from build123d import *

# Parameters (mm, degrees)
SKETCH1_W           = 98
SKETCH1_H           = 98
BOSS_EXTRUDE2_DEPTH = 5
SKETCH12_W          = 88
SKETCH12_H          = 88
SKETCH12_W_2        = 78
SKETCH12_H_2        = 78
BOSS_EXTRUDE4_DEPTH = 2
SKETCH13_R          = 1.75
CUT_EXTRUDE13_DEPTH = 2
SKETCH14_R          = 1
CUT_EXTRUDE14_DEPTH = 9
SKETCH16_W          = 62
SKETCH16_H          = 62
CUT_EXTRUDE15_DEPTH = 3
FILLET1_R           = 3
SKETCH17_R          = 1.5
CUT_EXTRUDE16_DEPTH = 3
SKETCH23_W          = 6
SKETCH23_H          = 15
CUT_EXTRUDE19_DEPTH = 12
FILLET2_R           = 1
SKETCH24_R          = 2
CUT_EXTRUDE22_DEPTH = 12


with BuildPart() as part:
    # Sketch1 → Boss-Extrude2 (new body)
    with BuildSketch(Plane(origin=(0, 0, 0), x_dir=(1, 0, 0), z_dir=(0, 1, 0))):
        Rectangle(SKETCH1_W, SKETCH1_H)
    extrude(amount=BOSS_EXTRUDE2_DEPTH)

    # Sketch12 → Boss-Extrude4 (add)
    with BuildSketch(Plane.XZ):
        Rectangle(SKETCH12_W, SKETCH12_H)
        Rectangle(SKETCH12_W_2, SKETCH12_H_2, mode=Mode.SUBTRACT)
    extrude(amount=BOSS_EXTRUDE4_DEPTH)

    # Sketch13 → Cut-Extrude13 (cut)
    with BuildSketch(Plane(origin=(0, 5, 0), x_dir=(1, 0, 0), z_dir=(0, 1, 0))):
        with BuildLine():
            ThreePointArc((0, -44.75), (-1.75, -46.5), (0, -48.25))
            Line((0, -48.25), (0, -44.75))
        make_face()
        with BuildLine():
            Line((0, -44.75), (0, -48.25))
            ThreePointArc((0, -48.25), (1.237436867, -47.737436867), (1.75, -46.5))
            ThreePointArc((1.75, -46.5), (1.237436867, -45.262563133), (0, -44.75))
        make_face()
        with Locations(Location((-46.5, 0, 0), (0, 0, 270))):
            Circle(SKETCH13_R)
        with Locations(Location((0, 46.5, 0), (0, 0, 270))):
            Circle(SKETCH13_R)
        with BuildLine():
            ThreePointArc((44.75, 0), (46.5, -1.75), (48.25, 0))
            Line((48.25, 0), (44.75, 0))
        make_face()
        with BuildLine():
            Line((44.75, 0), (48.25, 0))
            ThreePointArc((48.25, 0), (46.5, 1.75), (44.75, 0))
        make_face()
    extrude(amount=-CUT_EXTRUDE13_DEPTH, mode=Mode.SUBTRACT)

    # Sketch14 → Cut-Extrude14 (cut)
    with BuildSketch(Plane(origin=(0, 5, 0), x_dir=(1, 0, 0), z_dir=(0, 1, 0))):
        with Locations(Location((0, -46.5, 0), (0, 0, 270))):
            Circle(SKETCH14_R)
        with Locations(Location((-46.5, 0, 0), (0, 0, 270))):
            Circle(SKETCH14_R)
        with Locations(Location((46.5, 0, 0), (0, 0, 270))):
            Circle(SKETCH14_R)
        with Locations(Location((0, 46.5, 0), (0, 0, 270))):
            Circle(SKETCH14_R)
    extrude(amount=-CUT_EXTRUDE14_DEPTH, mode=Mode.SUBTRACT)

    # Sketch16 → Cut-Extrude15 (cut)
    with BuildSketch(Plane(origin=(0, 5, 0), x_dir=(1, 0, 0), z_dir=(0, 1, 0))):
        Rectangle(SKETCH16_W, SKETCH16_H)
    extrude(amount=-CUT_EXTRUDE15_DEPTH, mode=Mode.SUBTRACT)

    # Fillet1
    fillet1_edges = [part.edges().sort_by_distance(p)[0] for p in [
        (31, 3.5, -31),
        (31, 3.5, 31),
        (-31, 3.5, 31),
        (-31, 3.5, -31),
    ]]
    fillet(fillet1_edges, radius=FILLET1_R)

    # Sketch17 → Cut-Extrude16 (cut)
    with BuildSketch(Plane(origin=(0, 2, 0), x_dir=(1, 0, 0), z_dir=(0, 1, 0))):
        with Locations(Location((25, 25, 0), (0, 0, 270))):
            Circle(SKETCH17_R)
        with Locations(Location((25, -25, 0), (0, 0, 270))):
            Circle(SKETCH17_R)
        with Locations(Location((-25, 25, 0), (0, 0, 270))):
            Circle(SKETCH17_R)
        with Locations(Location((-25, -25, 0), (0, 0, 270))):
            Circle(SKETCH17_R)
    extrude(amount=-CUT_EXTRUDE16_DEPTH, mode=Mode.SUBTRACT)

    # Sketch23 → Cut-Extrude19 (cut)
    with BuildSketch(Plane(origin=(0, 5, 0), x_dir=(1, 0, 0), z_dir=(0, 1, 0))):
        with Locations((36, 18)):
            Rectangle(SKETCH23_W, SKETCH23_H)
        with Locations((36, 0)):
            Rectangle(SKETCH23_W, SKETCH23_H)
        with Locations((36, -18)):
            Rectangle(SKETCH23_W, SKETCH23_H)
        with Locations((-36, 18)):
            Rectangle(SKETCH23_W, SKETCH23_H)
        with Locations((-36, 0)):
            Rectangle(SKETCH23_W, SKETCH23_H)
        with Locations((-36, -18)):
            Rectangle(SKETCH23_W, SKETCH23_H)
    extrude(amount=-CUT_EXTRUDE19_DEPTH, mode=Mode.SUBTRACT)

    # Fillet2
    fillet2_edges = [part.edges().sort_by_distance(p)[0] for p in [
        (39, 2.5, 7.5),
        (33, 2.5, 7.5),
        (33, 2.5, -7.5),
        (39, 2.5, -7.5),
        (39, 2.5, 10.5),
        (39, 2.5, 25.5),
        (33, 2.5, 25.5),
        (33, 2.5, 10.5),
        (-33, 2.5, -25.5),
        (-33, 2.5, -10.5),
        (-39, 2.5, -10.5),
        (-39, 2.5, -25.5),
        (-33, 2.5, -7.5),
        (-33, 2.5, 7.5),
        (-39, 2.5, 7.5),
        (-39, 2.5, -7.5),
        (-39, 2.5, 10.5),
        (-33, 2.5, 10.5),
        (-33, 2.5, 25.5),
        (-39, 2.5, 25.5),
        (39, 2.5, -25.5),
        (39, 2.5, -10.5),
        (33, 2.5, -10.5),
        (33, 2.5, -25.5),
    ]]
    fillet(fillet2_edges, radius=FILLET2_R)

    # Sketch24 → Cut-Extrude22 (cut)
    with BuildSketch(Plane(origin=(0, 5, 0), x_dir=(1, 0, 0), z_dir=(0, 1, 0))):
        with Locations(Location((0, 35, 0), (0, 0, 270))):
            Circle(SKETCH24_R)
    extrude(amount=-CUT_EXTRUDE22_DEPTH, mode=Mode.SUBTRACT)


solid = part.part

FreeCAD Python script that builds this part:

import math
import FreeCAD as App
import Part
import Sketcher


def edges_at(feature, points):
    """Names of the edges that pass closest to the given points."""
    edges = feature.Shape.Edges
    near = lambda p: min(range(len(edges)), key=lambda i: edges[i].distToShape(Part.Vertex(*p))[0])
    return sorted({f"Edge{near(p) + 1}" for p in points})

doc = App.newDocument("Part")
params = doc.addObject("Spreadsheet::Sheet", "Params")
for row, (alias, value) in enumerate([
    ("sketch1_width", "98 mm"),
    ("pad1_length", "5 mm"),
    ("sketch2_width", "88 mm"),
    ("sketch2_width2", "78 mm"),
    ("pad2_length", "2 mm"),
    ("sketch3_diameter", "3.5 mm"),
    ("pocket1_length", "2 mm"),
    ("sketch4_diameter", "2 mm"),
    ("pocket2_length", "9 mm"),
    ("sketch5_width", "62 mm"),
    ("pocket3_length", "3 mm"),
    ("fillet_radius", "3 mm"),
    ("sketch6_diameter", "3 mm"),
    ("pocket4_length", "3 mm"),
    ("sketch7_width", "6 mm"),
    ("sketch7_height", "15 mm"),
    ("pocket5_length", "12 mm"),
    ("fillet2_radius", "1 mm"),
    ("sketch8_diameter", "4 mm"),
    ("pocket6_length", "12 mm"),
], start=1):
    params.set(f"A{row}", alias)
    params.set(f"B{row}", "=" + value)
    params.setAlias(f"B{row}", alias)

body = doc.addObject("PartDesign::Body", "Body")

# Sketch on XZ plane
sketch1 = body.newObject("Sketcher::SketchObject", "Sketch")
sketch1.AttachmentSupport = (doc.getObject("XZ_Plane"), [""])
sketch1.MapMode = "FlatFace"
sketch1.addGeometry(Part.LineSegment(App.Vector(-49, -49, 0), App.Vector(-49, 49, 0)), False)
sketch1.addGeometry(Part.LineSegment(App.Vector(-49, 49, 0), App.Vector(49, 49, 0)), False)
sketch1.addGeometry(Part.LineSegment(App.Vector(49, 49, 0), App.Vector(49, -49, 0)), False)
sketch1.addGeometry(Part.LineSegment(App.Vector(49, -49, 0), App.Vector(-49, -49, 0)), False)
sketch1.addConstraint(Sketcher.Constraint("Coincident", 0, 2, 1, 1))
sketch1.addConstraint(Sketcher.Constraint("Coincident", 1, 2, 2, 1))
sketch1.addConstraint(Sketcher.Constraint("Coincident", 2, 2, 3, 1))
sketch1.addConstraint(Sketcher.Constraint("Coincident", 3, 2, 0, 1))
sketch1.addConstraint(Sketcher.Constraint("Vertical", 0))
sketch1.addConstraint(Sketcher.Constraint("Horizontal", 1))
sketch1.addConstraint(Sketcher.Constraint("Vertical", 2))
sketch1.addConstraint(Sketcher.Constraint("Horizontal", 3))
sketch1.addConstraint(Sketcher.Constraint("Symmetric", 0, 2, 2, 2, -1, 1))
sketch1.addConstraint(Sketcher.Constraint("Equal", 3, 0))
sketch1.addConstraint(Sketcher.Constraint("DistanceX", 1, 1, 1, 2, 98.0))
sketch1.setExpression("Constraints[10]", "Params.sketch1_width")
pad1 = body.newObject("PartDesign::Pad", "Pad")
pad1.Profile = sketch1
pad1.setExpression("Length", "Params.pad1_length")
pad1.Reversed = True

# Sketch on XZ plane
sketch2 = body.newObject("Sketcher::SketchObject", "Sketch001")
sketch2.AttachmentSupport = (doc.getObject("XZ_Plane"), [""])
sketch2.MapMode = "FlatFace"
sketch2.addGeometry(Part.LineSegment(App.Vector(-44, 44, 0), App.Vector(-44, -44, 0)), False)
sketch2.addGeometry(Part.LineSegment(App.Vector(-44, -44, 0), App.Vector(44, -44, 0)), False)
sketch2.addGeometry(Part.LineSegment(App.Vector(44, -44, 0), App.Vector(44, 44, 0)), False)
sketch2.addGeometry(Part.LineSegment(App.Vector(44, 44, 0), App.Vector(-44, 44, 0)), False)
sketch2.addGeometry(Part.LineSegment(App.Vector(39, -39, 0), App.Vector(-39, -39, 0)), False)
sketch2.addGeometry(Part.LineSegment(App.Vector(-39, -39, 0), App.Vector(-39, 39, 0)), False)
sketch2.addGeometry(Part.LineSegment(App.Vector(-39, 39, 0), App.Vector(39, 39, 0)), False)
sketch2.addGeometry(Part.LineSegment(App.Vector(39, 39, 0), App.Vector(39, -39, 0)), False)
sketch2.addConstraint(Sketcher.Constraint("Coincident", 0, 2, 1, 1))
sketch2.addConstraint(Sketcher.Constraint("Coincident", 1, 2, 2, 1))
sketch2.addConstraint(Sketcher.Constraint("Coincident", 2, 2, 3, 1))
sketch2.addConstraint(Sketcher.Constraint("Coincident", 3, 2, 0, 1))
sketch2.addConstraint(Sketcher.Constraint("Coincident", 4, 2, 5, 1))
sketch2.addConstraint(Sketcher.Constraint("Coincident", 5, 2, 6, 1))
sketch2.addConstraint(Sketcher.Constraint("Coincident", 6, 2, 7, 1))
sketch2.addConstraint(Sketcher.Constraint("Coincident", 7, 2, 4, 1))
sketch2.addConstraint(Sketcher.Constraint("Vertical", 0))
sketch2.addConstraint(Sketcher.Constraint("Horizontal", 1))
sketch2.addConstraint(Sketcher.Constraint("Vertical", 2))
sketch2.addConstraint(Sketcher.Constraint("Horizontal", 3))
sketch2.addConstraint(Sketcher.Constraint("Horizontal", 4))
sketch2.addConstraint(Sketcher.Constraint("Vertical", 5))
sketch2.addConstraint(Sketcher.Constraint("Horizontal", 6))
sketch2.addConstraint(Sketcher.Constraint("Vertical", 7))
sketch2.addConstraint(Sketcher.Constraint("Symmetric", 0, 2, 2, 2, -1, 1))
sketch2.addConstraint(Sketcher.Constraint("Symmetric", 4, 2, 6, 2, -1, 1))
sketch2.addConstraint(Sketcher.Constraint("Equal", 3, 0))
sketch2.addConstraint(Sketcher.Constraint("Equal", 6, 5))
sketch2.addConstraint(Sketcher.Constraint("DistanceX", 1, 1, 1, 2, 88.0))
sketch2.addConstraint(Sketcher.Constraint("DistanceX", 4, 2, 4, 1, 78.0))
sketch2.setExpression("Constraints[20]", "Params.sketch2_width")
sketch2.setExpression("Constraints[21]", "Params.sketch2_width2")
pad2 = body.newObject("PartDesign::Pad", "Pad001")
pad2.Profile = sketch2
pad2.setExpression("Length", "Params.pad2_length")

# Sketch on XZ plane
sketch3 = body.newObject("Sketcher::SketchObject", "Sketch002")
sketch3.AttachmentSupport = (doc.getObject("XZ_Plane"), [""])
sketch3.MapMode = "FlatFace"
sketch3.AttachmentOffset = App.Placement(App.Vector(0, 0, -5), App.Rotation())
sketch3.addGeometry(Part.ArcOfCircle(Part.Circle(App.Vector(0, 46.5, 0), App.Vector(0, 0, 1), 1.8), math.radians(90), math.radians(270)), False)
sketch3.addGeometry(Part.ArcOfCircle(Part.Circle(App.Vector(0, 46.5, 0), App.Vector(0, 0, 1), 1.8), math.radians(0), math.radians(90)), False)
sketch3.addGeometry(Part.ArcOfCircle(Part.Circle(App.Vector(0, 46.5, 0), App.Vector(0, 0, 1), 1.8), math.radians(-90), math.radians(0)), False)
sketch3.addGeometry(Part.Circle(App.Vector(-46.5, 0, 0), App.Vector(0, 0, 1), 1.8), False)
sketch3.addGeometry(Part.Circle(App.Vector(0, -46.5, 0), App.Vector(0, 0, 1), 1.8), False)
sketch3.addGeometry(Part.Circle(App.Vector(46.5, 0, 0), App.Vector(0, 0, 1), 1.8), False)
sketch3.addConstraint(Sketcher.Constraint("Tangent", 0, 1, 1, 2))
sketch3.addConstraint(Sketcher.Constraint("Tangent", 1, 1, 2, 2))
sketch3.addConstraint(Sketcher.Constraint("Tangent", 2, 1, 0, 2))
sketch3.addConstraint(Sketcher.Constraint("Equal", 2, 3))
sketch3.addConstraint(Sketcher.Constraint("Equal", 3, 4))
sketch3.addConstraint(Sketcher.Constraint("Equal", 4, 5))
sketch3.addConstraint(Sketcher.Constraint("Symmetric", 0, 3, 4, 3, -1, 1))
sketch3.addConstraint(Sketcher.Constraint("Symmetric", 3, 3, 5, 3, -1, 1))
sketch3.addConstraint(Sketcher.Constraint("PointOnObject", 0, 3, -2))
sketch3.addConstraint(Sketcher.Constraint("PointOnObject", 3, 3, -1))
sketch3.addConstraint(Sketcher.Constraint("PointOnObject", 0, 1, -2))
sketch3.addConstraint(Sketcher.Constraint("PointOnObject", 2, 1, -2))
sketch3.addConstraint(Sketcher.Constraint("Horizontal", 2, 3, 1, 1))
sketch3.addConstraint(Sketcher.Constraint("Diameter", 3, 3.5))
sketch3.addConstraint(Sketcher.Constraint("DistanceY", 4, 3, 0, 3, 93.0))
sketch3.addConstraint(Sketcher.Constraint("DistanceX", 3, 3, 5, 3, 93.0))
sketch3.setExpression("Constraints[13]", "Params.sketch3_diameter")
pocket1 = body.newObject("PartDesign::Pocket", "Pocket")
pocket1.Profile = sketch3
pocket1.setExpression("Length", "Params.pocket1_length")
pocket1.Reversed = True

# Sketch on XZ plane
sketch4 = body.newObject("Sketcher::SketchObject", "Sketch003")
sketch4.AttachmentSupport = (doc.getObject("XZ_Plane"), [""])
sketch4.MapMode = "FlatFace"
sketch4.AttachmentOffset = App.Placement(App.Vector(0, 0, -5), App.Rotation())
sketch4.addGeometry(Part.Circle(App.Vector(0, 46.5, 0), App.Vector(0, 0, 1), 1), False)
sketch4.addGeometry(Part.Circle(App.Vector(-46.5, 0, 0), App.Vector(0, 0, 1), 1), False)
sketch4.addGeometry(Part.Circle(App.Vector(46.5, 0, 0), App.Vector(0, 0, 1), 1), False)
sketch4.addGeometry(Part.Circle(App.Vector(0, -46.5, 0), App.Vector(0, 0, 1), 1), False)
sketch4.addConstraint(Sketcher.Constraint("Equal", 0, 1))
sketch4.addConstraint(Sketcher.Constraint("Equal", 1, 2))
sketch4.addConstraint(Sketcher.Constraint("Equal", 2, 3))
sketch4.addConstraint(Sketcher.Constraint("Symmetric", 1, 3, 2, 3, -1, 1))
sketch4.addConstraint(Sketcher.Constraint("Symmetric", 0, 3, 3, 3, -1, 1))
sketch4.addConstraint(Sketcher.Constraint("PointOnObject", 0, 3, -2))
sketch4.addConstraint(Sketcher.Constraint("PointOnObject", 1, 3, -1))
sketch4.addConstraint(Sketcher.Constraint("Diameter", 0, 2.0))
sketch4.addConstraint(Sketcher.Constraint("DistanceX", 1, 3, 2, 3, 93.0))
sketch4.addConstraint(Sketcher.Constraint("DistanceY", 3, 3, 0, 3, 93.0))
sketch4.setExpression("Constraints[7]", "Params.sketch4_diameter")
pocket2 = body.newObject("PartDesign::Pocket", "Pocket001")
pocket2.Profile = sketch4
pocket2.setExpression("Length", "Params.pocket2_length")
pocket2.Reversed = True

# Sketch on XZ plane
sketch5 = body.newObject("Sketcher::SketchObject", "Sketch004")
sketch5.AttachmentSupport = (doc.getObject("XZ_Plane"), [""])
sketch5.MapMode = "FlatFace"
sketch5.AttachmentOffset = App.Placement(App.Vector(0, 0, -5), App.Rotation())
sketch5.addGeometry(Part.LineSegment(App.Vector(-31, -31, 0), App.Vector(-31, 31, 0)), False)
sketch5.addGeometry(Part.LineSegment(App.Vector(-31, 31, 0), App.Vector(31, 31, 0)), False)
sketch5.addGeometry(Part.LineSegment(App.Vector(31, 31, 0), App.Vector(31, -31, 0)), False)
sketch5.addGeometry(Part.LineSegment(App.Vector(31, -31, 0), App.Vector(-31, -31, 0)), False)
sketch5.addConstraint(Sketcher.Constraint("Coincident", 0, 2, 1, 1))
sketch5.addConstraint(Sketcher.Constraint("Coincident", 1, 2, 2, 1))
sketch5.addConstraint(Sketcher.Constraint("Coincident", 2, 2, 3, 1))
sketch5.addConstraint(Sketcher.Constraint("Coincident", 3, 2, 0, 1))
sketch5.addConstraint(Sketcher.Constraint("Vertical", 0))
sketch5.addConstraint(Sketcher.Constraint("Horizontal", 1))
sketch5.addConstraint(Sketcher.Constraint("Vertical", 2))
sketch5.addConstraint(Sketcher.Constraint("Horizontal", 3))
sketch5.addConstraint(Sketcher.Constraint("Symmetric", 0, 2, 2, 2, -1, 1))
sketch5.addConstraint(Sketcher.Constraint("Equal", 3, 0))
sketch5.addConstraint(Sketcher.Constraint("DistanceX", 1, 1, 1, 2, 62.0))
sketch5.setExpression("Constraints[10]", "Params.sketch5_width")
pocket3 = body.newObject("PartDesign::Pocket", "Pocket002")
pocket3.Profile = sketch5
pocket3.setExpression("Length", "Params.pocket3_length")
pocket3.Reversed = True
doc.recompute()

fillet = body.newObject("PartDesign::Fillet", "Fillet")
fillet.Base = (pocket3, edges_at(pocket3, [
    (31, 3.5, -31),
    (31, 3.5, 31),
    (-31, 3.5, 31),
    (-31, 3.5, -31),
]))
fillet.setExpression("Radius", "Params.fillet_radius")

# Sketch on XZ plane
sketch6 = body.newObject("Sketcher::SketchObject", "Sketch005")
sketch6.AttachmentSupport = (doc.getObject("XZ_Plane"), [""])
sketch6.MapMode = "FlatFace"
sketch6.AttachmentOffset = App.Placement(App.Vector(0, 0, -2), App.Rotation())
sketch6.addGeometry(Part.Circle(App.Vector(25, -25, 0), App.Vector(0, 0, 1), 1.5), False)
sketch6.addGeometry(Part.Circle(App.Vector(25, 25, 0), App.Vector(0, 0, 1), 1.5), False)
sketch6.addGeometry(Part.Circle(App.Vector(-25, -25, 0), App.Vector(0, 0, 1), 1.5), False)
sketch6.addGeometry(Part.Circle(App.Vector(-25, 25, 0), App.Vector(0, 0, 1), 1.5), False)
sketch6.addConstraint(Sketcher.Constraint("Equal", 0, 1))
sketch6.addConstraint(Sketcher.Constraint("Equal", 1, 2))
sketch6.addConstraint(Sketcher.Constraint("Equal", 2, 3))
sketch6.addConstraint(Sketcher.Constraint("Symmetric", 1, 3, 2, 3, -1, 1))
sketch6.addConstraint(Sketcher.Constraint("Symmetric", 0, 3, 3, 3, -1, 1))
sketch6.addConstraint(Sketcher.Constraint("Symmetric", 0, 3, 2, 3, -2))
sketch6.addConstraint(Sketcher.Constraint("Diameter", 0, 3.0))
sketch6.addConstraint(Sketcher.Constraint("DistanceX", -1, 1, 0, 3, 25.0))
sketch6.addConstraint(Sketcher.Constraint("DistanceY", 0, 3, -1, 1, 25.0))
sketch6.setExpression("Constraints[6]", "Params.sketch6_diameter")
pocket4 = body.newObject("PartDesign::Pocket", "Pocket003")
pocket4.Profile = sketch6
pocket4.setExpression("Length", "Params.pocket4_length")
pocket4.Reversed = True

# Sketch on XZ plane
sketch7 = body.newObject("Sketcher::SketchObject", "Sketch006")
sketch7.AttachmentSupport = (doc.getObject("XZ_Plane"), [""])
sketch7.MapMode = "FlatFace"
sketch7.AttachmentOffset = App.Placement(App.Vector(0, 0, -5), App.Rotation())
sketch7.addGeometry(Part.LineSegment(App.Vector(33, -26, 0), App.Vector(33, -10, 0)), False)
sketch7.addGeometry(Part.LineSegment(App.Vector(33, -10, 0), App.Vector(39, -10, 0)), False)
sketch7.addGeometry(Part.LineSegment(App.Vector(39, -10, 0), App.Vector(39, -26, 0)), False)
sketch7.addGeometry(Part.LineSegment(App.Vector(39, -26, 0), App.Vector(33, -26, 0)), False)
sketch7.addGeometry(Part.LineSegment(App.Vector(33, -8, 0), App.Vector(33, 8, 0)), False)
sketch7.addGeometry(Part.LineSegment(App.Vector(33, 8, 0), App.Vector(39, 8, 0)), False)
sketch7.addGeometry(Part.LineSegment(App.Vector(39, 8, 0), App.Vector(39, -8, 0)), False)
sketch7.addGeometry(Part.LineSegment(App.Vector(39, -8, 0), App.Vector(33, -8, 0)), False)
sketch7.addGeometry(Part.LineSegment(App.Vector(33, 10, 0), App.Vector(33, 26, 0)), False)
sketch7.addGeometry(Part.LineSegment(App.Vector(33, 26, 0), App.Vector(39, 26, 0)), False)
sketch7.addGeometry(Part.LineSegment(App.Vector(39, 26, 0), App.Vector(39, 10, 0)), False)
sketch7.addGeometry(Part.LineSegment(App.Vector(39, 10, 0), App.Vector(33, 10, 0)), False)
sketch7.addGeometry(Part.LineSegment(App.Vector(-39, -26, 0), App.Vector(-39, -10, 0)), False)
sketch7.addGeometry(Part.LineSegment(App.Vector(-39, -10, 0), App.Vector(-33, -10, 0)), False)
sketch7.addGeometry(Part.LineSegment(App.Vector(-33, -10, 0), App.Vector(-33, -26, 0)), False)
sketch7.addGeometry(Part.LineSegment(App.Vector(-33, -26, 0), App.Vector(-39, -26, 0)), False)
sketch7.addGeometry(Part.LineSegment(App.Vector(-39, -8, 0), App.Vector(-39, 8, 0)), False)
sketch7.addGeometry(Part.LineSegment(App.Vector(-39, 8, 0), App.Vector(-33, 8, 0)), False)
sketch7.addGeometry(Part.LineSegment(App.Vector(-33, 8, 0), App.Vector(-33, -8, 0)), False)
sketch7.addGeometry(Part.LineSegment(App.Vector(-33, -8, 0), App.Vector(-39, -8, 0)), False)
sketch7.addGeometry(Part.LineSegment(App.Vector(-39, 10, 0), App.Vector(-39, 26, 0)), False)
sketch7.addGeometry(Part.LineSegment(App.Vector(-39, 26, 0), App.Vector(-33, 26, 0)), False)
sketch7.addGeometry(Part.LineSegment(App.Vector(-33, 26, 0), App.Vector(-33, 10, 0)), False)
sketch7.addGeometry(Part.LineSegment(App.Vector(-33, 10, 0), App.Vector(-39, 10, 0)), False)
sketch7.addConstraint(Sketcher.Constraint("Coincident", 0, 2, 1, 1))
sketch7.addConstraint(Sketcher.Constraint("Coincident", 1, 2, 2, 1))
sketch7.addConstraint(Sketcher.Constraint("Coincident", 2, 2, 3, 1))
sketch7.addConstraint(Sketcher.Constraint("Coincident", 3, 2, 0, 1))
sketch7.addConstraint(Sketcher.Constraint("Coincident", 4, 2, 5, 1))
sketch7.addConstraint(Sketcher.Constraint("Coincident", 5, 2, 6, 1))
sketch7.addConstraint(Sketcher.Constraint("Coincident", 6, 2, 7, 1))
sketch7.addConstraint(Sketcher.Constraint("Coincident", 7, 2, 4, 1))
sketch7.addConstraint(Sketcher.Constraint("Coincident", 8, 2, 9, 1))
sketch7.addConstraint(Sketcher.Constraint("Coincident", 9, 2, 10, 1))
sketch7.addConstraint(Sketcher.Constraint("Coincident", 10, 2, 11, 1))
sketch7.addConstraint(Sketcher.Constraint("Coincident", 11, 2, 8, 1))
sketch7.addConstraint(Sketcher.Constraint("Coincident", 12, 2, 13, 1))
sketch7.addConstraint(Sketcher.Constraint("Coincident", 13, 2, 14, 1))
sketch7.addConstraint(Sketcher.Constraint("Coincident", 14, 2, 15, 1))
sketch7.addConstraint(Sketcher.Constraint("Coincident", 15, 2, 12, 1))
sketch7.addConstraint(Sketcher.Constraint("Coincident", 16, 2, 17, 1))
sketch7.addConstraint(Sketcher.Constraint("Coincident", 17, 2, 18, 1))
sketch7.addConstraint(Sketcher.Constraint("Coincident", 18, 2, 19, 1))
sketch7.addConstraint(Sketcher.Constraint("Coincident", 19, 2, 16, 1))
sketch7.addConstraint(Sketcher.Constraint("Coincident", 20, 2, 21, 1))
sketch7.addConstraint(Sketcher.Constraint("Coincident", 21, 2, 22, 1))
sketch7.addConstraint(Sketcher.Constraint("Coincident", 22, 2, 23, 1))
sketch7.addConstraint(Sketcher.Constraint("Coincident", 23, 2, 20, 1))
sketch7.addConstraint(Sketcher.Constraint("Vertical", 0))
sketch7.addConstraint(Sketcher.Constraint("Horizontal", 1))
sketch7.addConstraint(Sketcher.Constraint("Vertical", 2))
sketch7.addConstraint(Sketcher.Constraint("Horizontal", 3))
sketch7.addConstraint(Sketcher.Constraint("Vertical", 4))
sketch7.addConstraint(Sketcher.Constraint("Horizontal", 5))
sketch7.addConstraint(Sketcher.Constraint("Vertical", 6))
sketch7.addConstraint(Sketcher.Constraint("Horizontal", 7))
sketch7.addConstraint(Sketcher.Constraint("Vertical", 8))
sketch7.addConstraint(Sketcher.Constraint("Horizontal", 9))
sketch7.addConstraint(Sketcher.Constraint("Vertical", 10))
sketch7.addConstraint(Sketcher.Constraint("Horizontal", 11))
sketch7.addConstraint(Sketcher.Constraint("Vertical", 12))
sketch7.addConstraint(Sketcher.Constraint("Horizontal", 13))
sketch7.addConstraint(Sketcher.Constraint("Vertical", 14))
sketch7.addConstraint(Sketcher.Constraint("Horizontal", 15))
sketch7.addConstraint(Sketcher.Constraint("Vertical", 16))
sketch7.addConstraint(Sketcher.Constraint("Horizontal", 17))
sketch7.addConstraint(Sketcher.Constraint("Vertical", 18))
sketch7.addConstraint(Sketcher.Constraint("Horizontal", 19))
sketch7.addConstraint(Sketcher.Constraint("Vertical", 20))
sketch7.addConstraint(Sketcher.Constraint("Horizontal", 21))
sketch7.addConstraint(Sketcher.Constraint("Vertical", 22))
sketch7.addConstraint(Sketcher.Constraint("Horizontal", 23))
sketch7.addConstraint(Sketcher.Constraint("Symmetric", 10, 2, 12, 2, -1, 1))
sketch7.addConstraint(Sketcher.Constraint("Symmetric", 8, 2, 14, 2, -1, 1))
sketch7.addConstraint(Sketcher.Constraint("Symmetric", 6, 2, 16, 2, -1, 1))
sketch7.addConstraint(Sketcher.Constraint("Symmetric", 4, 2, 18, 2, -1, 1))
sketch7.addConstraint(Sketcher.Constraint("Symmetric", 2, 2, 20, 2, -1, 1))
sketch7.addConstraint(Sketcher.Constraint("Symmetric", 0, 2, 22, 2, -1, 1))
sketch7.addConstraint(Sketcher.Constraint("Symmetric", 1, 2, 12, 2, -2))
sketch7.addConstraint(Sketcher.Constraint("Symmetric", 3, 2, 14, 2, -2))
sketch7.addConstraint(Sketcher.Constraint("Horizontal", 5, 2, 16, 2))
sketch7.addConstraint(Sketcher.Constraint("Vertical", 3, 2, 4, 2))
sketch7.addConstraint(Sketcher.Constraint("Vertical", 2, 2, 5, 2))
sketch7.addConstraint(Sketcher.Constraint("Equal", 2, 4))
sketch7.addConstraint(Sketcher.Constraint("DistanceX", 1, 1, 1, 2, 6.0))
sketch7.addConstraint(Sketcher.Constraint("DistanceY", 0, 1, 0, 2, 15.0))
sketch7.addConstraint(Sketcher.Constraint("DistanceX", -1, 1, 0, 2, 33.0))
sketch7.addConstraint(Sketcher.Constraint("DistanceY", 0, 2, 4, 2, 18.0))
sketch7.setExpression("Constraints[60]", "Params.sketch7_width")
sketch7.setExpression("Constraints[61]", "Params.sketch7_height")
pocket5 = body.newObject("PartDesign::Pocket", "Pocket004")
pocket5.Profile = sketch7
pocket5.setExpression("Length", "Params.pocket5_length")
pocket5.Reversed = True
doc.recompute()

fillet2 = body.newObject("PartDesign::Fillet", "Fillet001")
fillet2.Base = (pocket5, edges_at(pocket5, [
    (39, 2.5, 7.5),
    (33, 2.5, 7.5),
    (33, 2.5, -7.5),
    (39, 2.5, -7.5),
    (39, 2.5, 10.5),
    (39, 2.5, 25.5),
    (33, 2.5, 25.5),
    (33, 2.5, 10.5),
    (-33, 2.5, -25.5),
    (-33, 2.5, -10.5),
    (-39, 2.5, -10.5),
    (-39, 2.5, -25.5),
    (-33, 2.5, -7.5),
    (-33, 2.5, 7.5),
    (-39, 2.5, 7.5),
    (-39, 2.5, -7.5),
    (-39, 2.5, 10.5),
    (-33, 2.5, 10.5),
    (-33, 2.5, 25.5),
    (-39, 2.5, 25.5),
    (39, 2.5, -25.5),
    (39, 2.5, -10.5),
    (33, 2.5, -10.5),
    (33, 2.5, -25.5),
]))
fillet2.setExpression("Radius", "Params.fillet2_radius")

# Sketch on XZ plane
sketch8 = body.newObject("Sketcher::SketchObject", "Sketch007")
sketch8.AttachmentSupport = (doc.getObject("XZ_Plane"), [""])
sketch8.MapMode = "FlatFace"
sketch8.AttachmentOffset = App.Placement(App.Vector(0, 0, -5), App.Rotation())
sketch8.addGeometry(Part.Circle(App.Vector(0, -35, 0), App.Vector(0, 0, 1), 2), False)
sketch8.addConstraint(Sketcher.Constraint("PointOnObject", 0, 3, -2))
sketch8.addConstraint(Sketcher.Constraint("Diameter", 0, 4.0))
sketch8.addConstraint(Sketcher.Constraint("DistanceY", 0, 3, -1, 1, 35.0))
sketch8.setExpression("Constraints[1]", "Params.sketch8_diameter")
pocket6 = body.newObject("PartDesign::Pocket", "Pocket005")
pocket6.Profile = sketch8
pocket6.setExpression("Length", "Params.pocket6_length")
pocket6.Reversed = True

doc.recompute()
